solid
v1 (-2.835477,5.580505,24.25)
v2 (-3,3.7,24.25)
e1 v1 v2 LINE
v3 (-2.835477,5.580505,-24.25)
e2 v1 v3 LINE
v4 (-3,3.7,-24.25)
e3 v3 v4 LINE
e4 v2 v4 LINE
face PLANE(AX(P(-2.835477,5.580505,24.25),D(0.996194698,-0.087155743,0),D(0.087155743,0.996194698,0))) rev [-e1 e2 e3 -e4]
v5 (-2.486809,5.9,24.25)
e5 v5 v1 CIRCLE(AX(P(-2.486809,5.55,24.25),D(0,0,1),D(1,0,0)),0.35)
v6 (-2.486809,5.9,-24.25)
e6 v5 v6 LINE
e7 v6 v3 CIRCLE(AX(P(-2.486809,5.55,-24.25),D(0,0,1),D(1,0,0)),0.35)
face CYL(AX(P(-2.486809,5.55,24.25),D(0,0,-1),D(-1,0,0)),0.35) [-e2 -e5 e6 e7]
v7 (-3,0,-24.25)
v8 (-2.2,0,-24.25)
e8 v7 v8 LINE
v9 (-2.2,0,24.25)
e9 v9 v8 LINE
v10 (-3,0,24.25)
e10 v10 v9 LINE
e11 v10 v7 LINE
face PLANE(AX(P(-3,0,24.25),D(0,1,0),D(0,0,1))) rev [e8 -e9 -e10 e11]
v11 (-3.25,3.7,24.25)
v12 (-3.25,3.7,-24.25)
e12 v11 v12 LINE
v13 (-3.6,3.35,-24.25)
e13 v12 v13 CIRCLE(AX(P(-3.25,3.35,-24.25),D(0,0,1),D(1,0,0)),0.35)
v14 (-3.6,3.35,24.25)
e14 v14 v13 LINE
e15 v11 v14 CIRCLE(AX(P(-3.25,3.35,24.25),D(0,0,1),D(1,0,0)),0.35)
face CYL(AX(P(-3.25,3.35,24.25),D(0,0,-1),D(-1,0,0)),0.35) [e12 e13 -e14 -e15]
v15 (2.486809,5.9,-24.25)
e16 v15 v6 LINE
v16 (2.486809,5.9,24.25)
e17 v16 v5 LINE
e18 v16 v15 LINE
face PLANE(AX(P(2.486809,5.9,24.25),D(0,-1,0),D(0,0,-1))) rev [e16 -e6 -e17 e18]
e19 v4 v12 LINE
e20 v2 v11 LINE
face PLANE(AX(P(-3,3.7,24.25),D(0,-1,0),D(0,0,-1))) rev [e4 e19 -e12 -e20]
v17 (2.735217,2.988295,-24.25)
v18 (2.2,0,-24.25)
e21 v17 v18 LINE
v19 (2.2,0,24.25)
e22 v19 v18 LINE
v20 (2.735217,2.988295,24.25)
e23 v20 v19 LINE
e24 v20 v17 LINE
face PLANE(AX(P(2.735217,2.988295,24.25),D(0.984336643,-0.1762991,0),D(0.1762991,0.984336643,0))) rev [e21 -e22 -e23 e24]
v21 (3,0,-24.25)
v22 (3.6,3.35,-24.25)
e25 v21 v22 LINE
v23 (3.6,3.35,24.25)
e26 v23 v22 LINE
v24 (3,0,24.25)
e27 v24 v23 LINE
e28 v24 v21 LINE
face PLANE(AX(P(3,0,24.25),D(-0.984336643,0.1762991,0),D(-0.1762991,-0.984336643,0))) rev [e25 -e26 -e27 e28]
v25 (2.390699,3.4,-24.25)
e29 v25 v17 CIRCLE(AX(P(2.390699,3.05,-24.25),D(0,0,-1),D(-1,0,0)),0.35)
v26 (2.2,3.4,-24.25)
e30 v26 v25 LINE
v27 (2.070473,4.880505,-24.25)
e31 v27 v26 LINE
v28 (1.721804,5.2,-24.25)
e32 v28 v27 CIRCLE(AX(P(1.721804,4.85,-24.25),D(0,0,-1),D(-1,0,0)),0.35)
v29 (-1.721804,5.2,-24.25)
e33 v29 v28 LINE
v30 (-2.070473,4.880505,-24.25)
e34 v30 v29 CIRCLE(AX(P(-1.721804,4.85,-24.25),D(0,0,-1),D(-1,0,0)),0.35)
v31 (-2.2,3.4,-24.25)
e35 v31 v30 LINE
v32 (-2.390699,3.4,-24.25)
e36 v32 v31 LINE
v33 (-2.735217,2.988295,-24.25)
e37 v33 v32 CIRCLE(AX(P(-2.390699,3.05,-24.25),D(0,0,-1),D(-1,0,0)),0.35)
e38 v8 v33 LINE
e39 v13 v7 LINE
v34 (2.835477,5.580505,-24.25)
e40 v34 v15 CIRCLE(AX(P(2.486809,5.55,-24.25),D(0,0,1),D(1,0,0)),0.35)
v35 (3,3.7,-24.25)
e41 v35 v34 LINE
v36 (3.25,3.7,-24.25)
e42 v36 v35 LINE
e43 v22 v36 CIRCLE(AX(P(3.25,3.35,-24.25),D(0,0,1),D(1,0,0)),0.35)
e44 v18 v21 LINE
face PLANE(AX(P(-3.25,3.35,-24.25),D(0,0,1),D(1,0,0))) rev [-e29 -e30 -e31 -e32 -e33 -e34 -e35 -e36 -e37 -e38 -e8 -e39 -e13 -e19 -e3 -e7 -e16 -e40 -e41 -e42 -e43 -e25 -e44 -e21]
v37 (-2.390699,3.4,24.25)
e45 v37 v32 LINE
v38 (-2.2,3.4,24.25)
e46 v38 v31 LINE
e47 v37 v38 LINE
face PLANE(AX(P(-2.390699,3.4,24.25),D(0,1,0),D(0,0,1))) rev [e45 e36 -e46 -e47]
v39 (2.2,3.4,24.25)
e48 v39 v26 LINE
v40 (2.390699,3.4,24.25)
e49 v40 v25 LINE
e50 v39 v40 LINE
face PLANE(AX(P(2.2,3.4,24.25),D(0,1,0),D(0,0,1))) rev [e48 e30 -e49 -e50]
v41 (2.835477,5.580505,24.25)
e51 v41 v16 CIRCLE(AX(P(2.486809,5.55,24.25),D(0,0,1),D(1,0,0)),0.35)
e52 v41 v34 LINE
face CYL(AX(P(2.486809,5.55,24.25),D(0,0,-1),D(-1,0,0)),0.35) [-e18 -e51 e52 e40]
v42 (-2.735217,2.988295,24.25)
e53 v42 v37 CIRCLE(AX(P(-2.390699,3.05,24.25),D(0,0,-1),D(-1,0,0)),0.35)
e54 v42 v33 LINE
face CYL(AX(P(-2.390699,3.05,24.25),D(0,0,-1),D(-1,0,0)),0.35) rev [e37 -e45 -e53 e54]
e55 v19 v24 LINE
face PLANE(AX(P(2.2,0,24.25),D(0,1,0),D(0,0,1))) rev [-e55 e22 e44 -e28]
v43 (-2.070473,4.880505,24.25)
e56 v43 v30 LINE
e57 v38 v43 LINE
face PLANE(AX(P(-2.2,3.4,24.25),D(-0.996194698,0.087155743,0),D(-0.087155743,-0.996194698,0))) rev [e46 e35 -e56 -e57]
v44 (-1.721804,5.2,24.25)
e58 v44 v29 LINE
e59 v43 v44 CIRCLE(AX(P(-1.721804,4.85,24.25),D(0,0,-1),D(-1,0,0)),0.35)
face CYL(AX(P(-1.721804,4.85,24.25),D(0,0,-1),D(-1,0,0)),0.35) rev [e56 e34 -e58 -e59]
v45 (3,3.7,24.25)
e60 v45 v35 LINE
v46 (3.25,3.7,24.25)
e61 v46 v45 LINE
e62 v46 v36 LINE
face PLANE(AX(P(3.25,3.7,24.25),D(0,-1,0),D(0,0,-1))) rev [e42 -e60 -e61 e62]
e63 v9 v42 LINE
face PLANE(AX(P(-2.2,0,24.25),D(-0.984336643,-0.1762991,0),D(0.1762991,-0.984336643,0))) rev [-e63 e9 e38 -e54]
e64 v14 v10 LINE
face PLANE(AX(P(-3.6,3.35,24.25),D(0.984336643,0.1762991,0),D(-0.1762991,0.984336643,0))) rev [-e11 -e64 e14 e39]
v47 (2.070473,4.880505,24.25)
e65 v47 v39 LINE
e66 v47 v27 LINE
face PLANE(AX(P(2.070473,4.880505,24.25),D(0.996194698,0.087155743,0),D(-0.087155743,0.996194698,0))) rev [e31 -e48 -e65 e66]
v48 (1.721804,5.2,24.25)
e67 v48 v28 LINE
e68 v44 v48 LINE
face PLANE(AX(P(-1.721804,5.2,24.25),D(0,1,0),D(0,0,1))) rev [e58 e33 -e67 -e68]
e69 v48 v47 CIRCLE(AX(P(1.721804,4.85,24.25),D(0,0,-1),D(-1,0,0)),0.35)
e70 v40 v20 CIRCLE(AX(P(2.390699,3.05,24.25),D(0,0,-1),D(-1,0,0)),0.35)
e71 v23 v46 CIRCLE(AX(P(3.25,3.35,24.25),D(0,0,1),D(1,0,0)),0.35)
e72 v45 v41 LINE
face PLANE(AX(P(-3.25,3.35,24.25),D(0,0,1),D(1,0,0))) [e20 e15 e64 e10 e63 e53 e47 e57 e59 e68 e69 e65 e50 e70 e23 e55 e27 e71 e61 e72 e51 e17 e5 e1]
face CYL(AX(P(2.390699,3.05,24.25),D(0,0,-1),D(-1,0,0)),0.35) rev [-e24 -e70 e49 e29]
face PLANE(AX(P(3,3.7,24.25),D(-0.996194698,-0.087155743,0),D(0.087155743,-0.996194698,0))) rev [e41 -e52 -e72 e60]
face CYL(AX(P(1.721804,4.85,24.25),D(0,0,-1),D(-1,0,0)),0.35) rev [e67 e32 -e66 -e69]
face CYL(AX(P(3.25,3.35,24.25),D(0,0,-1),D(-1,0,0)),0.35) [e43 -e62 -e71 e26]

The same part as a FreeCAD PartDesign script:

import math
import FreeCAD as App
import Part
import Sketcher
Q = App.Units.Quantity

doc = App.newDocument("Part")
params = doc.addObject("Spreadsheet::Sheet", "Params")
for row, (alias, value) in enumerate([
    ("sketch1_radius", "0.35 mm"),
    ("sketch1_width", "0.8 mm"),
    ("sketch1_width2", "0.25 mm"),
    ("pad1_length", "48.5 mm"),
], start=1):
    params.set(f"A{row}", alias)
    params.set(f"B{row}", "=" + value)
    params.setAlias(f"B{row}", alias)

body = doc.addObject("PartDesign::Body", "Body")

sketch1 = doc.addObject("Sketcher::SketchObject", "Sketch")
body.addObject(sketch1)
sketch1.AttachmentSupport = (doc.XY_Plane, [""])
sketch1.MapMode = "FlatFace"
sketch1.addGeometry(Part.LineSegment(App.Vector(-3.6, 3.35, 0), App.Vector(-3, 0, 0)), False)
sketch1.addGeometry(Part.LineSegment(App.Vector(-3, 0, 0), App.Vector(-2.2, 0, 0)), False)
sketch1.addGeometry(Part.LineSegment(App.Vector(-2.2, 0, 0), App.Vector(-2.74, 2.99, 0)), False)
sketch1.addGeometry(Part.ArcOfCircle(Part.Circle(App.Vector(-2.39, 3.05, 0), App.Vector(0, 0, 1), 0.35), math.radians(90), math.radians(190)), False)
sketch1.addGeometry(Part.LineSegment(App.Vector(-2.39, 3.4, 0), App.Vector(-2.2, 3.4, 0)), False)
sketch1.addGeometry(Part.LineSegment(App.Vector(-2.2, 3.4, 0), App.Vector(-2.07, 4.88, 0)), False)
sketch1.addGeometry(Part.ArcOfCircle(Part.Circle(App.Vector(-1.72, 4.85, 0), App.Vector(0, 0, 1), 0.35), math.radians(90), math.radians(175)), False)
sketch1.addGeometry(Part.LineSegment(App.Vector(-1.72, 5.2, 0), App.Vector(1.72, 5.2, 0)), False)
sketch1.addGeometry(Part.ArcOfCircle(Part.Circle(App.Vector(1.72, 4.85, 0), App.Vector(0, 0, 1), 0.35), math.radians(5), math.radians(90)), False)
sketch1.addGeometry(Part.LineSegment(App.Vector(2.07, 4.88, 0), App.Vector(2.2, 3.4, 0)), False)
sketch1.addGeometry(Part.LineSegment(App.Vector(2.2, 3.4, 0), App.Vector(2.39, 3.4, 0)), False)
sketch1.addGeometry(Part.ArcOfCircle(Part.Circle(App.Vector(2.39, 3.05, 0), App.Vector(0, 0, 1), 0.35), math.radians(-10), math.radians(90)), False)
sketch1.addGeometry(Part.LineSegment(App.Vector(2.74, 2.99, 0), App.Vector(2.2, 0, 0)), False)
sketch1.addGeometry(Part.LineSegment(App.Vector(2.2, 0, 0), App.Vector(3, 0, 0)), False)
sketch1.addGeometry(Part.LineSegment(App.Vector(3, 0, 0), App.Vector(3.6, 3.35, 0)), False)
sketch1.addGeometry(Part.ArcOfCircle(Part.Circle(App.Vector(3.25, 3.35, 0), App.Vector(0, 0, 1), 0.35), math.radians(0), math.radians(90)), False)
sketch1.addGeometry(Part.LineSegment(App.Vector(3.25, 3.7, 0), App.Vector(3, 3.7, 0)), False)
sketch1.addGeometry(Part.LineSegment(App.Vector(3, 3.7, 0), App.Vector(2.84, 5.58, 0)), False)
sketch1.addGeometry(Part.ArcOfCircle(Part.Circle(App.Vector(2.49, 5.55, 0), App.Vector(0, 0, 1), 0.35), math.radians(5), math.radians(90)), False)
sketch1.addGeometry(Part.LineSegment(App.Vector(2.49, 5.9, 0), App.Vector(-2.49, 5.9, 0)), False)
sketch1.addGeometry(Part.ArcOfCircle(Part.Circle(App.Vector(-2.49, 5.55, 0), App.Vector(0, 0, 1), 0.35), math.radians(90), math.radians(175)), False)
sketch1.addGeometry(Part.LineSegment(App.Vector(-2.84, 5.58, 0), App.Vector(-3, 3.7, 0)), False)
sketch1.addGeometry(Part.LineSegment(App.Vector(-3, 3.7, 0), App.Vector(-3.25, 3.7, 0)), False)
sketch1.addGeometry(Part.ArcOfCircle(Part.Circle(App.Vector(-3.25, 3.35, 0), App.Vector(0, 0, 1), 0.35), math.radians(90), math.radians(180)), False)
sketch1.addConstraint(Sketcher.Constraint("Coincident", 0, 2, 1, 1))
sketch1.addConstraint(Sketcher.Constraint("Coincident", 1, 2, 2, 1))
sketch1.addConstraint(Sketcher.Constraint("Tangent", 2, 2, 3, 2))
sketch1.addConstraint(Sketcher.Constraint("Tangent", 3, 1, 4, 1))
sketch1.addConstraint(Sketcher.Constraint("Coincident", 4, 2, 5, 1))
sketch1.addConstraint(Sketcher.Constraint("Tangent", 5, 2, 6, 2))
sketch1.addConstraint(Sketcher.Constraint("Tangent", 6, 1, 7, 1))
sketch1.addConstraint(Sketcher.Constraint("Tangent", 7, 2, 8, 2))
sketch1.addConstraint(Sketcher.Constraint("Tangent", 8, 1, 9, 1))
sketch1.addConstraint(Sketcher.Constraint("Coincident", 9, 2, 10, 1))
sketch1.addConstraint(Sketcher.Constraint("Tangent", 10, 2, 11, 2))
sketch1.addConstraint(Sketcher.Constraint("Tangent", 11, 1, 12, 1))
sketch1.addConstraint(Sketcher.Constraint("Coincident", 12, 2, 13, 1))
sketch1.addConstraint(Sketcher.Constraint("Coincident", 13, 2, 14, 1))
sketch1.addConstraint(Sketcher.Constraint("Coincident", 14, 2, 15, 1))
sketch1.addConstraint(Sketcher.Constraint("Tangent", 15, 2, 16, 1))
sketch1.addConstraint(Sketcher.Constraint("Coincident", 16, 2, 17, 1))
sketch1.addConstraint(Sketcher.Constraint("Tangent", 17, 2, 18, 1))
sketch1.addConstraint(Sketcher.Constraint("Tangent", 18, 2, 19, 1))
sketch1.addConstraint(Sketcher.Constraint("Tangent", 19, 2, 20, 1))
sketch1.addConstraint(Sketcher.Constraint("Tangent", 20, 2, 21, 1))
sketch1.addConstraint(Sketcher.Constraint("Coincident", 21, 2, 22, 1))
sketch1.addConstraint(Sketcher.Constraint("Tangent", 22, 2, 23, 1))
sketch1.addConstraint(Sketcher.Constraint("Coincident", 23, 2, 0, 1))
sketch1.addConstraint(Sketcher.Constraint("Horizontal", 1))
sketch1.addConstraint(Sketcher.Constraint("Horizontal", 4))
sketch1.addConstraint(Sketcher.Constraint("Horizontal", 7))
sketch1.addConstraint(Sketcher.Constraint("Horizontal", 10))
sketch1.addConstraint(Sketcher.Constraint("Horizontal", 13))
sketch1.addConstraint(Sketcher.Constraint("Horizontal", 16))
sketch1.addConstraint(Sketcher.Constraint("Horizontal", 19))
sketch1.addConstraint(Sketcher.Constraint("Horizontal", 22))
sketch1.addConstraint(Sketcher.Constraint("Equal", 3, 6))
sketch1.addConstraint(Sketcher.Constraint("Equal", 6, 8))
sketch1.addConstraint(Sketcher.Constraint("Equal", 8, 11))
sketch1.addConstraint(Sketcher.Constraint("Equal", 11, 15))
sketch1.addConstraint(Sketcher.Constraint("Equal", 15, 18))
sketch1.addConstraint(Sketcher.Constraint("Equal", 18, 20))
sketch1.addConstraint(Sketcher.Constraint("Equal", 20, 23))
sketch1.addConstraint(Sketcher.Constraint("Symmetric", 1, 2, 12, 2, -1, 1))
sketch1.addConstraint(Sketcher.Constraint("Symmetric", 3, 3, 11, 3, -2))
sketch1.addConstraint(Sketcher.Constraint("Symmetric", 15, 3, 23, 3, -2))
sketch1.addConstraint(Sketcher.Constraint("Symmetric", 5, 2, 8, 1, -2))
sketch1.addConstraint(Sketcher.Constraint("Symmetric", 0, 2, 13, 2, -2))
sketch1.addConstraint(Sketcher.Constraint("Symmetric", 17, 2, 20, 2, -2))
sketch1.addConstraint(Sketcher.Constraint("Parallel", 0, 2))
sketch1.addConstraint(Sketcher.Constraint("Parallel", 12, 14))
sketch1.addConstraint(Sketcher.Constraint("Parallel", 9, 17))
sketch1.addConstraint(Sketcher.Constraint("Horizontal", 23, 3, 14, 2))
sketch1.addConstraint(Sketcher.Constraint("Vertical", 1, 2, 4, 2))
sketch1.addConstraint(Sketcher.Constraint("Vertical", 13, 2, 16, 2))
sketch1.addConstraint(Sketcher.Constraint("Angle", 5, Q("85 deg")))
sketch1.addConstraint(Sketcher.Constraint("Radius", 3, 0.35))
sketch1.addConstraint(Sketcher.Constraint("DistanceX", 1, 1, 1, 2, 0.8))
sketch1.addConstraint(Sketcher.Constraint("DistanceX", 0, 2, -1, 1, 3.0))
sketch1.addConstraint(Sketcher.Constraint("DistanceX", 16, 2, 16, 1, 0.25))
sketch1.addConstraint(Sketcher.Constraint("DistanceY", -1, 1, 3, 1, 3.4))
sketch1.addConstraint(Sketcher.Constraint("DistanceY", -1, 1, 6, 1, 5.2))
sketch1.addConstraint(Sketcher.Constraint("DistanceY", -1, 1, 15, 2, 3.7))
sketch1.addConstraint(Sketcher.Constraint("DistanceY", -1, 1, 18, 2, 5.9))
sketch1.setExpression("Constraints[52]", "Params.sketch1_radius")
sketch1.setExpression("Constraints[53]", "Params.sketch1_width")
sketch1.setExpression("Constraints[55]", "Params.sketch1_width2")
pad1 = doc.addObject("PartDesign::Pad", "Pad")
body.addObject(pad1)
pad1.Profile = sketch1
pad1.setExpression("Length", "Params.pad1_length")
pad1.Midplane = True

doc.recompute()
